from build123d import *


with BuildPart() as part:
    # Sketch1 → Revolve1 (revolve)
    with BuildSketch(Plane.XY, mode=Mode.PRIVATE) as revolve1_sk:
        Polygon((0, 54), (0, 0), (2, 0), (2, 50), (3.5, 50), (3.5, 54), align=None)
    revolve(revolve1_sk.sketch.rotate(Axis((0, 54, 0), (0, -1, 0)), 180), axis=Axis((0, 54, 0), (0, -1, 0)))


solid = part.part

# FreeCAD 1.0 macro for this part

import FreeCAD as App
import Part
import Sketcher
from FreeCAD import Vector
Q = App.Units.Quantity


def add_polygon(sketch, points):
    """Adds a closed chain of lines whose ends are joined by coincident constraints."""
    first, n = sketch.GeometryCount, len(points)
    for a, b in zip(points, points[1:] + points[:1]):
        sketch.addGeometry(Part.LineSegment(App.Vector(*a, 0), App.Vector(*b, 0)), False)
    for i in range(n):
        sketch.addConstraint(Sketcher.Constraint("Coincident", first + i, 2, first + (i + 1) % n, 1))

doc = App.newDocument("Part")
params = doc.addObject("Spreadsheet::Sheet", "Params")
for row, (alias, value) in enumerate([
    ("sketch1_width", "2 mm"),
    ("sketch1_height", "54 mm"),
    ("sketch1_height2", "50 mm"),
    ("sketch1_width2", "1.5 mm"),
    ("revolution_angle", "360 deg"),
], start=1):
    params.set(f"A{row}", alias)
    params.set(f"B{row}", "=" + value)
    params.setAlias(f"B{row}", alias)

body = doc.addObject("PartDesign::Body", "Body")

# Sketch on XY plane
sketch1 = doc.addObject("Sketcher::SketchObject", "Sketch")
body.addObject(sketch1)
sketch1.AttachmentSupport = (doc.XY_Plane, [""])
sketch1.MapMode = "FlatFace"
add_polygon(sketch1, [(0, 54), (0, 0), (2, 0), (2, 50), (3.5, 50), (3.5, 54)])  # lines 0-5
sketch1.addConstraint([
    Sketcher.Constraint("Vertical", 0),
    Sketcher.Constraint("Horizontal", 1),
    Sketcher.Constraint("Vertical", 2),
    Sketcher.Constraint("Horizontal", 3),
    Sketcher.Constraint("Vertical", 4),
    Sketcher.Constraint("Horizontal", 5),
    Sketcher.Constraint("Coincident", 0, 2, -1, 1),
    Sketcher.Constraint("DistanceX", 1, 1, 1, 2, Q("2 mm")),
    Sketcher.Constraint("DistanceY", 0, 2, 0, 1, Q("54 mm")),
    Sketcher.Constraint("DistanceY", 2, 1, 2, 2, Q("50 mm")),
    Sketcher.Constraint("DistanceX", 3, 1, 3, 2, Q("1.5 mm")),
])
sketch1.setExpression("Constraints[13]", "Params.sketch1_width")
sketch1.setExpression("Constraints[14]", "Params.sketch1_height")
sketch1.setExpression("Constraints[15]", "Params.sketch1_height2")
sketch1.setExpression("Constraints[16]", "Params.sketch1_width2")
revolution = doc.addObject("PartDesign::Revolution", "Revolution")
body.addObject(revolution)
revolution.Profile = sketch1
revolution.ReferenceAxis = (sketch1, ["V_Axis"])
revolution.setExpression("Angle", "Params.revolution_angle")

doc.recompute()
